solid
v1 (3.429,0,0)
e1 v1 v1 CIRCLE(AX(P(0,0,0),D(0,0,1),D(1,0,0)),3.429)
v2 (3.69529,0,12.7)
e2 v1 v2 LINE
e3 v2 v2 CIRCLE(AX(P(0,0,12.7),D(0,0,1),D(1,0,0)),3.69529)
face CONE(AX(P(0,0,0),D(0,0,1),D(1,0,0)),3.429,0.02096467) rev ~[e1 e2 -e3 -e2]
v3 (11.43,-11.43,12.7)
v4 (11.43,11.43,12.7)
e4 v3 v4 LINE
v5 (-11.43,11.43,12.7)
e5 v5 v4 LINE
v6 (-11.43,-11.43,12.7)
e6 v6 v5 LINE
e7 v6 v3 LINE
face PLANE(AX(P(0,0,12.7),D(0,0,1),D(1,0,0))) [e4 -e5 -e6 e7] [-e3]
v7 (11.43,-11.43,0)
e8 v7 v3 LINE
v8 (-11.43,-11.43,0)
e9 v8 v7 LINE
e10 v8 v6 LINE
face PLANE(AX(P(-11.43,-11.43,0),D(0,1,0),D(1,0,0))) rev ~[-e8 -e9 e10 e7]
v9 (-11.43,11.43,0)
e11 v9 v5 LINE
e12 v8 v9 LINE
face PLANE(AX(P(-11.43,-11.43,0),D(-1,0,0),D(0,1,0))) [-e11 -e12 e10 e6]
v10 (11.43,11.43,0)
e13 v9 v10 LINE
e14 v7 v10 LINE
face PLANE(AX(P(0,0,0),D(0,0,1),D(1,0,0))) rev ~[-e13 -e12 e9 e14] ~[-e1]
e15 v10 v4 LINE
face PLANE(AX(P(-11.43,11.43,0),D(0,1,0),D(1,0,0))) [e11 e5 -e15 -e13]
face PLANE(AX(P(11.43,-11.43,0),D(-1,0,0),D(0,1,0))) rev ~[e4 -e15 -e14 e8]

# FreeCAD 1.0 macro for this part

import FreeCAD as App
import Part
import Sketcher
from FreeCAD import Vector
Q = App.Units.Quantity

doc = App.newDocument("Part")
body = doc.addObject("PartDesign::Body", "Body")

# Sketch on XY plane
sketch1 = doc.addObject("Sketcher::SketchObject", "Sketch")
body.addObject(sketch1)
sketch1.AttachmentSupport = (doc.XY_Plane, [""])
sketch1.MapMode = "FlatFace"
sketch1.addGeometry([
    Part.LineSegment(Vector(-11, 11, 0), Vector(-11, -11, 0)),
    Part.LineSegment(Vector(-11, -11, 0), Vector(11, -11, 0)),
    Part.LineSegment(Vector(11, -11, 0), Vector(11, 11, 0)),
    Part.LineSegment(Vector(11, 11, 0), Vector(-11, 11, 0)),
], False)
sketch1.addConstraint([
    Sketcher.Constraint("Coincident", 0, 2, 1, 1),
    Sketcher.Constraint("Coincident", 1, 2, 2, 1),
    Sketcher.Constraint("Coincident", 2, 2, 3, 1),
    Sketcher.Constraint("Coincident", 3, 2, 0, 1),
    Sketcher.Constraint("Vertical", 0),
    Sketcher.Constraint("Horizontal", 1),
    Sketcher.Constraint("Vertical", 2),
    Sketcher.Constraint("Horizontal", 3),
    Sketcher.Constraint("Symmetric", 0, 2, 2, 2, -1, 1),
    Sketcher.Constraint("Equal", 3, 0),
    Sketcher.Constraint("DistanceX", 1, 1, 1, 2, Q("0.9 in")),
])
pad1 = doc.addObject("PartDesign::Pad", "Pad")
body.addObject(pad1)
pad1.Profile = sketch1
pad1.Length = Q("0.5 in")

# Sketch on XZ plane
sketch2 = doc.addObject("Sketcher::SketchObject", "Sketch001")
body.addObject(sketch2)
sketch2.AttachmentSupport = (doc.XZ_Plane, [""])
sketch2.MapMode = "FlatFace"
sketch2.addGeometry([
    Part.LineSegment(Vector(0, 78.7, 0), Vector(0, 0, 0)),
    Part.LineSegment(Vector(0, 0, 0), Vector(3.4, 0, 0)),
    Part.LineSegment(Vector(3.4, 0, 0), Vector(5.1, 78.7, 0)),
    Part.LineSegment(Vector(5.1, 78.7, 0), Vector(0, 78.7, 0)),
], False)
sketch2.addConstraint([
    Sketcher.Constraint("Coincident", 0, 2, 1, 1),
    Sketcher.Constraint("Coincident", 1, 2, 2, 1),
    Sketcher.Constraint("Coincident", 2, 2, 3, 1),
    Sketcher.Constraint("Coincident", 3, 2, 0, 1),
    Sketcher.Constraint("Vertical", 0),
    Sketcher.Constraint("Horizontal", 1),
    Sketcher.Constraint("Horizontal", 3),
    Sketcher.Constraint("Coincident", 0, 2, -1, 1),
    Sketcher.Constraint("DistanceX", 3, 2, 3, 1, Q("0.2 in")),
    Sketcher.Constraint("DistanceY", 0, 2, 0, 1, Q("3.1 in")),
    Sketcher.Constraint("DistanceX", 1, 1, 1, 2, Q("0.135 in")),
])
groove = doc.addObject("PartDesign::Groove", "Groove")
body.addObject(groove)
groove.Profile = sketch2
groove.ReferenceAxis = (sketch2, ["V_Axis"])
groove.Angle = 360

doc.recompute()
